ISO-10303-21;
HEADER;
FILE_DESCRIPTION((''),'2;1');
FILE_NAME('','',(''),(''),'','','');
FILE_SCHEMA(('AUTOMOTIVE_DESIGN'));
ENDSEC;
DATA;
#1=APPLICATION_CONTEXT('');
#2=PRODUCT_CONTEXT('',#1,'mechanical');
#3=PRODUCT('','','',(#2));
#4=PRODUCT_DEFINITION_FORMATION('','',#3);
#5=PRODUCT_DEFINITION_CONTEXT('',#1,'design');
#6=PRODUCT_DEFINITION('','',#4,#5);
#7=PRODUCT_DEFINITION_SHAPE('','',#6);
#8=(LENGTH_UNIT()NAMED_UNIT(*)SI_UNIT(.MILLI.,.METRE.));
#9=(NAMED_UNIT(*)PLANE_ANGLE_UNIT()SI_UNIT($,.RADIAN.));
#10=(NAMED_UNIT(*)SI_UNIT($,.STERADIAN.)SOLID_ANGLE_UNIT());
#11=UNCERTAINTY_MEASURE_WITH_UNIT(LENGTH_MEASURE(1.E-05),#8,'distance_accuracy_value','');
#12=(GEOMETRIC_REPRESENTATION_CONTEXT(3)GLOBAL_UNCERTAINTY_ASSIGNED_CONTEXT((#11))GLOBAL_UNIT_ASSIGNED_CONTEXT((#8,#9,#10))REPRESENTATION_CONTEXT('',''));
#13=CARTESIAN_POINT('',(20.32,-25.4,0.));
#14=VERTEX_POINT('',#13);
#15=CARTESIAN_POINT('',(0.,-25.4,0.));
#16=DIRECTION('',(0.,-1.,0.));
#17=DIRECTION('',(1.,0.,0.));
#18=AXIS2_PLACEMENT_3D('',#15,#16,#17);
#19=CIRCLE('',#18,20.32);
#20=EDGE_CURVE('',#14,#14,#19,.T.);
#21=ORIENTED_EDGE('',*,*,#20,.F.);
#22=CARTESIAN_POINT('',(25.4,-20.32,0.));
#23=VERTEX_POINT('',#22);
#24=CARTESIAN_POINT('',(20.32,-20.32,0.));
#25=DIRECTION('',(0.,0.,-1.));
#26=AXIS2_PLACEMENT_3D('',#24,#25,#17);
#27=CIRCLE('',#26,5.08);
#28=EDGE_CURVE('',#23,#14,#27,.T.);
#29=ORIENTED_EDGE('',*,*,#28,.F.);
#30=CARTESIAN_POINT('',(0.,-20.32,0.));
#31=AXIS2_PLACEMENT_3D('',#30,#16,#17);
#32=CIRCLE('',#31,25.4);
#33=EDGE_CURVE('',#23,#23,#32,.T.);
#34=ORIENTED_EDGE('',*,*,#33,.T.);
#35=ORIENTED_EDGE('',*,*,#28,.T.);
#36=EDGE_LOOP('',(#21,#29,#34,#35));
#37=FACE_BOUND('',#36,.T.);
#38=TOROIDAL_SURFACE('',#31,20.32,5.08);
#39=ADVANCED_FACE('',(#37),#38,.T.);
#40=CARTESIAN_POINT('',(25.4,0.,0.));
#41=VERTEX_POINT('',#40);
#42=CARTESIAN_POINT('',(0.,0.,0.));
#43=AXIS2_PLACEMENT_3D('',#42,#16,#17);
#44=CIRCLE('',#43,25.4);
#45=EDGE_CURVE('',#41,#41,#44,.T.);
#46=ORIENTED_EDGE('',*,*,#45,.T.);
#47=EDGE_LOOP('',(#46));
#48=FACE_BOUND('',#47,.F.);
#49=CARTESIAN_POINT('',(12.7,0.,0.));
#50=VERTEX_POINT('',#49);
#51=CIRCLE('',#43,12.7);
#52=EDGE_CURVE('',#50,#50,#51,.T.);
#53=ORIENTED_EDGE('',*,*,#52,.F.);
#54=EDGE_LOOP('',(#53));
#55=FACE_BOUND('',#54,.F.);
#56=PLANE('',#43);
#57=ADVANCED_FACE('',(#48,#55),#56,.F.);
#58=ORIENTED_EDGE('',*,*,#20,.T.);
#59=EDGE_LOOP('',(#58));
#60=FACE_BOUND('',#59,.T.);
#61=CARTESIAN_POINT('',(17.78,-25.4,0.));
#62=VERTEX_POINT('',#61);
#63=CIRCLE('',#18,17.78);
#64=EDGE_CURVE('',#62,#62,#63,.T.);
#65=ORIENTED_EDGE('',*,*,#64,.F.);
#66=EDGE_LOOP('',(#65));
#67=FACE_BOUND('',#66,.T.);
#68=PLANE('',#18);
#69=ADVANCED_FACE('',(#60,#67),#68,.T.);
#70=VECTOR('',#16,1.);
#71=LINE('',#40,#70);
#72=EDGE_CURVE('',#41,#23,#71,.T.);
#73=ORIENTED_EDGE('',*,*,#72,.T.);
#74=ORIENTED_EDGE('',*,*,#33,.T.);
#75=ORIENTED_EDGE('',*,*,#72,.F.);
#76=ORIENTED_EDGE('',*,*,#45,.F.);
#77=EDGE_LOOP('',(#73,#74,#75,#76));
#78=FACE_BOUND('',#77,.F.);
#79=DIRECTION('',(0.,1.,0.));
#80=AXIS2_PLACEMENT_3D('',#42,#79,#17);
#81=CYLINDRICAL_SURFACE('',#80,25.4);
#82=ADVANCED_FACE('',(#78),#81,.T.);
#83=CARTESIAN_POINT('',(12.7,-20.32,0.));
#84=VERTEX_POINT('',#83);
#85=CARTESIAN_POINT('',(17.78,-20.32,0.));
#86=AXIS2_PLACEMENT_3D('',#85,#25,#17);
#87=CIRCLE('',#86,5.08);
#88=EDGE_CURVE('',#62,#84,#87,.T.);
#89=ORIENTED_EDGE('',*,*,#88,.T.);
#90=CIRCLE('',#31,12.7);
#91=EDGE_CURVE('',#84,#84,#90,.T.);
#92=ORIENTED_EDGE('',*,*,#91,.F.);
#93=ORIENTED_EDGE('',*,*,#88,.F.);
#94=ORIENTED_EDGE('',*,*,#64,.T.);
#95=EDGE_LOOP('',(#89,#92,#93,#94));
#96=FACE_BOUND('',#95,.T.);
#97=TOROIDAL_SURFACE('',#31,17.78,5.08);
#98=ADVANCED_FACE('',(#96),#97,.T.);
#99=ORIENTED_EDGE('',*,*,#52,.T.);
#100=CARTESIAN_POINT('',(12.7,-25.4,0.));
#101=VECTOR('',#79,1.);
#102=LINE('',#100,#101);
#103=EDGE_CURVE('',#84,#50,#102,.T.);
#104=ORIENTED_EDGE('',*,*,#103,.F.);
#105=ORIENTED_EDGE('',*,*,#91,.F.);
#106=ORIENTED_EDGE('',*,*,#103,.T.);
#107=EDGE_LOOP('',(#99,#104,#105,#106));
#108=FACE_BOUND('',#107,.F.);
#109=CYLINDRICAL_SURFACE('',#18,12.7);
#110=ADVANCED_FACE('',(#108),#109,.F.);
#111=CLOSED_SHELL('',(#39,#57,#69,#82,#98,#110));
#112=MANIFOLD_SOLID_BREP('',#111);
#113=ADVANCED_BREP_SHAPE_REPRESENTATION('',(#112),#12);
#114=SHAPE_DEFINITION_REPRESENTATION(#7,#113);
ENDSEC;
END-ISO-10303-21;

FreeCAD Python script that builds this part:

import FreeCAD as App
import Part
import Sketcher
from FreeCAD import Vector
Q = App.Units.Quantity


def edges_at(feature, points):
    """Names of the edges that pass closest to the given points."""
    edges = feature.Shape.Edges
    near = lambda p: min(range(len(edges)), key=lambda i: edges[i].distToShape(Part.Vertex(*p))[0])
    return sorted({f"Edge{near(p) + 1}" for p in points})

doc = App.newDocument("Part")
body = doc.addObject("PartDesign::Body", "Body")

sketch1 = body.newObject("Sketcher::SketchObject", "Sketch")
sketch1.AttachmentSupport = (doc.getObject("XZ_Plane"), [""])
sketch1.MapMode = "FlatFace"
sketch1.addGeometry(Part.Circle(Vector(0, 0, 0), Vector(0, 0, 1), 25.4), False)
sketch1.addConstraint(Sketcher.Constraint("Coincident", 0, 3, -1, 1))
sketch1.addConstraint(Sketcher.Constraint("Diameter", 0, Q("2 in")))
pad1 = body.newObject("PartDesign::Pad", "Pad")
pad1.Profile = sketch1
pad1.Length = Q("1 in")

sketch2 = body.newObject("Sketcher::SketchObject", "Sketch001")
sketch2.AttachmentSupport = (doc.getObject("XZ_Plane"), [""])
sketch2.MapMode = "FlatFace"
sketch2.AttachmentOffset = App.Placement(Vector(0, 0, 1 * 25.4), App.Rotation())
sketch2.addGeometry(Part.Circle(Vector(0, 0, 0), Vector(0, 0, 1), 12.7), False)
sketch2.addConstraint(Sketcher.Constraint("Coincident", 0, 3, -1, 1))
sketch2.addConstraint(Sketcher.Constraint("Diameter", 0, Q("1 in")))
pocket1 = body.newObject("PartDesign::Pocket", "Pocket")
pocket1.Profile = sketch2
pocket1.Type = "ThroughAll"
doc.recompute()

fillet = body.newObject("PartDesign::Fillet", "Fillet")
fillet.Base = (pocket1, edges_at(pocket1, [(-25.4, -25.4, 0), (-12.7, -25.4, 0)]))
fillet.Radius = Q("0.2 in")

doc.recompute()
